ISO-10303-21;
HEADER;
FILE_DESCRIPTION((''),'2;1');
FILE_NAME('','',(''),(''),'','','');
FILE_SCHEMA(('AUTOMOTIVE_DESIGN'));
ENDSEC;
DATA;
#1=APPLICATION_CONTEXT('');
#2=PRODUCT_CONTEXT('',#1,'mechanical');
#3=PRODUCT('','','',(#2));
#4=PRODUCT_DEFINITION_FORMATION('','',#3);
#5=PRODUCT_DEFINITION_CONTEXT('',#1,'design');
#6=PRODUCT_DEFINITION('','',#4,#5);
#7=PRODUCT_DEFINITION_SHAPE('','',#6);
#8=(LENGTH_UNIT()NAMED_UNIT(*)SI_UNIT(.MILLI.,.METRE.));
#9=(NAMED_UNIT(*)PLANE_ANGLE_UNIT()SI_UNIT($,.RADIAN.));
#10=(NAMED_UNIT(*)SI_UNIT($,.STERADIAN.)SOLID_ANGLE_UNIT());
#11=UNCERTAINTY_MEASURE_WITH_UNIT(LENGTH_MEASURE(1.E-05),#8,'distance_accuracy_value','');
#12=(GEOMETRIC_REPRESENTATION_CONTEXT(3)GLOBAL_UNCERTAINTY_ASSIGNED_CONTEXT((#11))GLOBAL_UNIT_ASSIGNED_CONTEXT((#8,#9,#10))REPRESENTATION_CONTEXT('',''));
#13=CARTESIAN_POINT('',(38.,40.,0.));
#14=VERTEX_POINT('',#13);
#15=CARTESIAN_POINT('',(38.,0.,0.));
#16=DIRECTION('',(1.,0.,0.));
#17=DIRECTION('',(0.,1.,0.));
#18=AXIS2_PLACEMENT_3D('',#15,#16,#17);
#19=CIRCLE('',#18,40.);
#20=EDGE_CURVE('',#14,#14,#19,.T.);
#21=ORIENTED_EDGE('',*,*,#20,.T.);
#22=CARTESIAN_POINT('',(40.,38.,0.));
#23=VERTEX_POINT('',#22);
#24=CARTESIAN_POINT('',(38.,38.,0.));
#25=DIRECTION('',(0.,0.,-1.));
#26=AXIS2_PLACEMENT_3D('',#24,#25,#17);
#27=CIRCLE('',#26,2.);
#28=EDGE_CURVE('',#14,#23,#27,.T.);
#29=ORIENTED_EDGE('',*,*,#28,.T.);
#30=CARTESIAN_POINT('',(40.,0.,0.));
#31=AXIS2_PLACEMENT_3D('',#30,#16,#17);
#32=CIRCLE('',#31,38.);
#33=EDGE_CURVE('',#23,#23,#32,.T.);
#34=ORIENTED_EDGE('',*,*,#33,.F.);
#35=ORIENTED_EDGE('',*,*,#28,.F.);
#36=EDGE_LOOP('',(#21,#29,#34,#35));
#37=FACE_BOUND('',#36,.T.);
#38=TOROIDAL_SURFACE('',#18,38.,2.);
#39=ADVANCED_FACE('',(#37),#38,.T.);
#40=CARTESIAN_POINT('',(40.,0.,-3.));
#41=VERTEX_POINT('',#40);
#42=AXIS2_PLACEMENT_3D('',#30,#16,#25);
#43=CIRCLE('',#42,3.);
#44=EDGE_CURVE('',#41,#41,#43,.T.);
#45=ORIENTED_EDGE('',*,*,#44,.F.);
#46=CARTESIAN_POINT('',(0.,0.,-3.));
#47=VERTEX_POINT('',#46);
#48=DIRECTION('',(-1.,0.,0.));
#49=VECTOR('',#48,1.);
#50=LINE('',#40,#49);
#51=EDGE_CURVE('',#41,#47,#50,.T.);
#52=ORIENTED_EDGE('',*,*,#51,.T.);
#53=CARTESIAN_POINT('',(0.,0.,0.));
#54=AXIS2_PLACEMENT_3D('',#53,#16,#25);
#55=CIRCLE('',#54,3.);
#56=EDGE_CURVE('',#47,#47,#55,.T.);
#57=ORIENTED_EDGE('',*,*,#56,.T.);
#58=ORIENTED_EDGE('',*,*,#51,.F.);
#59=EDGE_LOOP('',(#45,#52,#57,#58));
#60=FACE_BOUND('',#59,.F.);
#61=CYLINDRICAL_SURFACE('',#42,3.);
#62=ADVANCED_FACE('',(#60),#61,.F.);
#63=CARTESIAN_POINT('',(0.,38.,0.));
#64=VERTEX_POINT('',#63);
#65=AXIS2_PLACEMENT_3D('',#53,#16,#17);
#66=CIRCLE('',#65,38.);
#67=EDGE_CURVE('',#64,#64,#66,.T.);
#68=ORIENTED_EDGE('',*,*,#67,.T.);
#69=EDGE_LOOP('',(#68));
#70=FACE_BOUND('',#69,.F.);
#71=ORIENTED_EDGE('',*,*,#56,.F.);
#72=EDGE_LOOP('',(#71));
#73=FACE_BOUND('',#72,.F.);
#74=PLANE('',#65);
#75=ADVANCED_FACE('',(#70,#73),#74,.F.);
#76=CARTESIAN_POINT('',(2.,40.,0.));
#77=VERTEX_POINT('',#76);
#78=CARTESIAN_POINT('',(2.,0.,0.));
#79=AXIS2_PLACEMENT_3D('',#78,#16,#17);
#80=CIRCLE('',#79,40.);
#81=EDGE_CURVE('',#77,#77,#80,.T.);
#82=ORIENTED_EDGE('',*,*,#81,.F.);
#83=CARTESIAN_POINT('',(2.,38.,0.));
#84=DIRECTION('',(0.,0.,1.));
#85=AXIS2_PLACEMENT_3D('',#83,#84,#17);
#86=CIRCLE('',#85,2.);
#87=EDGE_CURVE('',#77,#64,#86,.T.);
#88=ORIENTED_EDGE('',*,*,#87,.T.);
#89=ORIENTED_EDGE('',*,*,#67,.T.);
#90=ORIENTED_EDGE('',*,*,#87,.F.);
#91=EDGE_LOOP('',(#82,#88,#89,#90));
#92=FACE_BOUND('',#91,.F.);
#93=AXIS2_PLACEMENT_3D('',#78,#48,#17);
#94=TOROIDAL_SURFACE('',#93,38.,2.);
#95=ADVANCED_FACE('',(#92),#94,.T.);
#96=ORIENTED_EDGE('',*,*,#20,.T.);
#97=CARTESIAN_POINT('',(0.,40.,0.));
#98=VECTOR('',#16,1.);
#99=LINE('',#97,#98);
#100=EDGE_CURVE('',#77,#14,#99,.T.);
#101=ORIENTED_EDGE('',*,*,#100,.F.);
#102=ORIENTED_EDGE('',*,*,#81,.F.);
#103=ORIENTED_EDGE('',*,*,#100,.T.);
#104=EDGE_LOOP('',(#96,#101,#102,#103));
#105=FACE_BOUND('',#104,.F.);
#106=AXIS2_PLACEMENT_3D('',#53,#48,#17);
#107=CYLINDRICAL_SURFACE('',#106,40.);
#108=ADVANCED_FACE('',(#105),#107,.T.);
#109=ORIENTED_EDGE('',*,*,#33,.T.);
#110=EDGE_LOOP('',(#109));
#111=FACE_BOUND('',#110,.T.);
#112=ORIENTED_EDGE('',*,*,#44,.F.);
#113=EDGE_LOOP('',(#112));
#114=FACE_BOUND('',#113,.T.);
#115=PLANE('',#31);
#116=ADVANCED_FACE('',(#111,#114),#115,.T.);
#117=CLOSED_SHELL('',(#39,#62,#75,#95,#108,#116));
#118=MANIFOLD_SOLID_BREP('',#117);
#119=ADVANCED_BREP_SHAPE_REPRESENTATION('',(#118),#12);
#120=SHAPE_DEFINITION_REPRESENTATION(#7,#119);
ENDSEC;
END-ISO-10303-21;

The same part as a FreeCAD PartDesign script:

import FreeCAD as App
import Part
import Sketcher


def edges_at(feature, points):
    """Names of the edges that pass closest to the given points."""
    edges = feature.Shape.Edges
    near = lambda p: min(range(len(edges)), key=lambda i: edges[i].distToShape(Part.Vertex(*p))[0])
    return sorted({f"Edge{near(p) + 1}" for p in points})

doc = App.newDocument("Part")
body = doc.addObject("PartDesign::Body", "Body")

# Sketch on YZ plane
sketch1 = body.newObject("Sketcher::SketchObject", "Sketch")
sketch1.AttachmentSupport = (doc.getObject("YZ_Plane"), [""])
sketch1.MapMode = "FlatFace"
sketch1.addGeometry(Part.Circle(App.Vector(0, 0, 0), App.Vector(0, 0, 1), 40), False)
sketch1.addConstraint([
    Sketcher.Constraint("Coincident", 0, 3, -1, 1),
    Sketcher.Constraint("Diameter", 0, 80.0),
])
pad1 = body.newObject("PartDesign::Pad", "Pad")
pad1.Profile = sketch1
pad1.Length = 40

# Sketch on YZ plane
sketch2 = body.newObject("Sketcher::SketchObject", "Sketch001")
sketch2.AttachmentSupport = (doc.getObject("YZ_Plane"), [""])
sketch2.MapMode = "FlatFace"
sketch2.AttachmentOffset = App.Placement(App.Vector(0, 0, 40), App.Rotation())
sketch2.addGeometry(Part.Circle(App.Vector(0, 0, 0), App.Vector(0, 0, 1), 3), False)
sketch2.addConstraint([
    Sketcher.Constraint("Coincident", 0, 3, -1, 1),
    Sketcher.Constraint("Diameter", 0, 6.0),
])
pocket1 = body.newObject("PartDesign::Pocket", "Pocket")
pocket1.Profile = sketch2
pocket1.Type = "ThroughAll"
doc.recompute()

fillet = body.newObject("PartDesign::Fillet", "Fillet")
fillet.Base = (pocket1, edges_at(pocket1, [(0, -40, 0)]))
fillet.Radius = 2
doc.recompute()

fillet2 = body.newObject("PartDesign::Fillet", "Fillet001")
fillet2.Base = (fillet, edges_at(fillet, [(40, -40, 0)]))
fillet2.Radius = 2

doc.recompute()
